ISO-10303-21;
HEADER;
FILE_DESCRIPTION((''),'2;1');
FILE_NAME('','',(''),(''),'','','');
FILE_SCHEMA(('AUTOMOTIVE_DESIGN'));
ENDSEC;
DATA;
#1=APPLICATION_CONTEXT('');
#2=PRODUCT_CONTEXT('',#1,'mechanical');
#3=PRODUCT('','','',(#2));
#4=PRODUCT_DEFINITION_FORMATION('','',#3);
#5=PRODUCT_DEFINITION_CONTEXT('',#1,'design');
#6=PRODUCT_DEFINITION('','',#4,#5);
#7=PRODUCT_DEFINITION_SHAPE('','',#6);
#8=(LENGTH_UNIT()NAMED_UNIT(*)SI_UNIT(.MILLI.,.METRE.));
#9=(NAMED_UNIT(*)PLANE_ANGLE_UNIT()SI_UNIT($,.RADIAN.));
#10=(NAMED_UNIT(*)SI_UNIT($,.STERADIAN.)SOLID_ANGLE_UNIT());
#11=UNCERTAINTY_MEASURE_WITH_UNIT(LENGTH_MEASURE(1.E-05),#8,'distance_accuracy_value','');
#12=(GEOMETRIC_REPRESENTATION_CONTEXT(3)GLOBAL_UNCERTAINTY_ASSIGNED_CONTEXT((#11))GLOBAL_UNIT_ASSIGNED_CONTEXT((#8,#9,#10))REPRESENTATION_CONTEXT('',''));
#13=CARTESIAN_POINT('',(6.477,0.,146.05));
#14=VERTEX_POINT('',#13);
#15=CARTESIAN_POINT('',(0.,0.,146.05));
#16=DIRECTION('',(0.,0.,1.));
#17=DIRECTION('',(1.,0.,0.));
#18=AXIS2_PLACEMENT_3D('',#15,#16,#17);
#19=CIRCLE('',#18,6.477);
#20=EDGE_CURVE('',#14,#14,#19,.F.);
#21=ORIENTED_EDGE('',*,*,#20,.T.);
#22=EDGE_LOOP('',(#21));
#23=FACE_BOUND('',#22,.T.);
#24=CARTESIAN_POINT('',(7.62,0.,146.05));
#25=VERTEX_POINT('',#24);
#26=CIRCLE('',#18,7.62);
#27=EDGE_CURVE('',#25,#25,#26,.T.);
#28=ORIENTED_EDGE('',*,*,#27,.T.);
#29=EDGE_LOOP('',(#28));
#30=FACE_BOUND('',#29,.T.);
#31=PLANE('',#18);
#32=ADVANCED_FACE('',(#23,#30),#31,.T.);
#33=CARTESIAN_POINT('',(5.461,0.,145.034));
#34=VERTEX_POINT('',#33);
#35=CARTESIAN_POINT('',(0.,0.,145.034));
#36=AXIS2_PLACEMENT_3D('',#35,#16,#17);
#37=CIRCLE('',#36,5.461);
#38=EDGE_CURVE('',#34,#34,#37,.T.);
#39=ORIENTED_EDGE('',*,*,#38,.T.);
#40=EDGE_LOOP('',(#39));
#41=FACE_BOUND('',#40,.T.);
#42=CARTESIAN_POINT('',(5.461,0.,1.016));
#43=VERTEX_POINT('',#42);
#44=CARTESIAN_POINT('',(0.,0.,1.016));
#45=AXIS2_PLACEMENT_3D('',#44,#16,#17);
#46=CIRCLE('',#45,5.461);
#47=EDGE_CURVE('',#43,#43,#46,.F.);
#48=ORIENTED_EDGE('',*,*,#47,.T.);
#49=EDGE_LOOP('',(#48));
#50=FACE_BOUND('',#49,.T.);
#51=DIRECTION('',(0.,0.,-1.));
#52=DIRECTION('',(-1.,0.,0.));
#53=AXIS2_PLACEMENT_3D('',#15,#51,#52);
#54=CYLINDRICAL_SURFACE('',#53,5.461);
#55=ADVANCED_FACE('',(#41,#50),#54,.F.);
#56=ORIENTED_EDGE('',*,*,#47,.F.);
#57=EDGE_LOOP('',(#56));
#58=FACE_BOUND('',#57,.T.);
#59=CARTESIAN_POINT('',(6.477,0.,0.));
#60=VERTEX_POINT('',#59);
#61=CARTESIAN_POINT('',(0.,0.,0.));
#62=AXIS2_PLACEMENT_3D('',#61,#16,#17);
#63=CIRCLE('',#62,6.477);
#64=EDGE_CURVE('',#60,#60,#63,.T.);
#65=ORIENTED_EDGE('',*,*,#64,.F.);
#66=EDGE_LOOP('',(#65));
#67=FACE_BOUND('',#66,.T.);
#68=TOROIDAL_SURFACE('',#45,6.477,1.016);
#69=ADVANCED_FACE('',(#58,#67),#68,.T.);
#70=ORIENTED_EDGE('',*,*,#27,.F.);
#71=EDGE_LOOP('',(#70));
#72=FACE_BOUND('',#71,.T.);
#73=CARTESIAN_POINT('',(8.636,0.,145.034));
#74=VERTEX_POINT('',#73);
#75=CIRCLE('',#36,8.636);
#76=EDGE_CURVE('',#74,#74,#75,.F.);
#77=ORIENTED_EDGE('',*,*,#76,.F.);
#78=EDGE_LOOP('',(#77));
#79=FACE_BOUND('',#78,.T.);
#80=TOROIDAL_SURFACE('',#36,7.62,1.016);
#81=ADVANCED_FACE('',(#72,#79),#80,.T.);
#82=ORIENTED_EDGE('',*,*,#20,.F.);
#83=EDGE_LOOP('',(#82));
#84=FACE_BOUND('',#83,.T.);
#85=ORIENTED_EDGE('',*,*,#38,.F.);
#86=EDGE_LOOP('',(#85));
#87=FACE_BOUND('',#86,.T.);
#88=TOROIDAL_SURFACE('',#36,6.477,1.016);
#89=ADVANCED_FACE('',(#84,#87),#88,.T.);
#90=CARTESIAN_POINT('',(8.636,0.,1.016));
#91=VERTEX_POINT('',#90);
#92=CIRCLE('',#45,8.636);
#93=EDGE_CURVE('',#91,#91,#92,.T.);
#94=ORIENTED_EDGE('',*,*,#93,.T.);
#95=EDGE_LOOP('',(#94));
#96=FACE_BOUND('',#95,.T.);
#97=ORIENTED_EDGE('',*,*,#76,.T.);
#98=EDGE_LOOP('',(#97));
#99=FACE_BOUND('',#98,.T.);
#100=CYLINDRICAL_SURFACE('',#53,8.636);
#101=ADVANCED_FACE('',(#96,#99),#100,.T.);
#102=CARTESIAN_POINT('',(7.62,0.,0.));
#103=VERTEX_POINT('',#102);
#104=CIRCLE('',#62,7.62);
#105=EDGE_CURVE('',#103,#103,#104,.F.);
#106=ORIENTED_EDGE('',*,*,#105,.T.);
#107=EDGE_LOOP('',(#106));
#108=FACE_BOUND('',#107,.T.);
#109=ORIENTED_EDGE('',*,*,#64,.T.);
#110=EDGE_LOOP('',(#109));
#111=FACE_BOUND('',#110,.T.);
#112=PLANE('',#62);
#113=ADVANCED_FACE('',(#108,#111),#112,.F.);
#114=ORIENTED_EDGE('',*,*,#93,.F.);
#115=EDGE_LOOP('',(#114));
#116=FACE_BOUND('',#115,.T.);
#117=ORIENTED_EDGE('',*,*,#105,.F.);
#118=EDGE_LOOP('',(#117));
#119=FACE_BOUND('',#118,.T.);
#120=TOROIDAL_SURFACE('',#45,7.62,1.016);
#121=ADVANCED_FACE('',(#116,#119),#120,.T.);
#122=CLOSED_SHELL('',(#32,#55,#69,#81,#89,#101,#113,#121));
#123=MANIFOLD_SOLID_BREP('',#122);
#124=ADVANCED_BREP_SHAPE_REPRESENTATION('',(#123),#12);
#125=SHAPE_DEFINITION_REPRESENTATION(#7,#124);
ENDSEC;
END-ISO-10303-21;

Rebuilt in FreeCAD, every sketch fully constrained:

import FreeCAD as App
import Part
import Sketcher

V = App.Vector
Q = App.Units.Quantity


def edges_at(feature, points):
    """Names of the edges that pass closest to the given points."""
    edges = feature.Shape.Edges
    near = lambda p: min(range(len(edges)), key=lambda i: edges[i].distToShape(Part.Vertex(*p))[0])
    return sorted({f"Edge{near(p) + 1}" for p in points})

doc = App.newDocument("Part")
params = doc.addObject("Spreadsheet::Sheet", "Params")
for row, (alias, value) in enumerate([
    ("sketch1_diameter", "0.68 in"),
    ("sketch1_diameter2", "0.43 in"),
    ("pad1_length", "5.75 in"),
    ("fillet_radius", "0.04 in"),
], start=1):
    params.set(f"A{row}", alias)
    params.set(f"B{row}", "=" + value)
    params.setAlias(f"B{row}", alias)

body = doc.addObject("PartDesign::Body", "Body")

# Sketch on XY plane
sketch1 = doc.addObject("Sketcher::SketchObject", "Sketch")
body.addObject(sketch1)
sketch1.AttachmentSupport = (doc.XY_Plane, [""])
sketch1.MapMode = "FlatFace"
sketch1.addGeometry([
    Part.Circle(V(0, 0, 0), V(0, 0, 1), 9),
    Part.Circle(V(0, 0, 0), V(0, 0, 1), 5),
], False)
sketch1.addConstraint([
    Sketcher.Constraint("Coincident", 0, 3, -1, 1),
    Sketcher.Constraint("Coincident", 1, 3, -1, 1),
    Sketcher.Constraint("Diameter", 0, Q("0.68 in")),
    Sketcher.Constraint("Diameter", 1, Q("0.43 in")),
])
sketch1.setExpression("Constraints[2]", "Params.sketch1_diameter")
sketch1.setExpression("Constraints[3]", "Params.sketch1_diameter2")
pad1 = doc.addObject("PartDesign::Pad", "Pad")
body.addObject(pad1)
pad1.Profile = sketch1
pad1.setExpression("Length", "Params.pad1_length")
doc.recompute()

fillet = doc.addObject("PartDesign::Fillet", "Fillet")
body.addObject(fillet)
fillet.Base = (pad1, edges_at(pad1, [
    (-8.636, 0, 0),
    (-8.636, 0, 146.05),
    (-5.461, 0, 0),
    (-5.461, 0, 146.05),
]))
fillet.setExpression("Radius", "Params.fillet_radius")

doc.recompute()
